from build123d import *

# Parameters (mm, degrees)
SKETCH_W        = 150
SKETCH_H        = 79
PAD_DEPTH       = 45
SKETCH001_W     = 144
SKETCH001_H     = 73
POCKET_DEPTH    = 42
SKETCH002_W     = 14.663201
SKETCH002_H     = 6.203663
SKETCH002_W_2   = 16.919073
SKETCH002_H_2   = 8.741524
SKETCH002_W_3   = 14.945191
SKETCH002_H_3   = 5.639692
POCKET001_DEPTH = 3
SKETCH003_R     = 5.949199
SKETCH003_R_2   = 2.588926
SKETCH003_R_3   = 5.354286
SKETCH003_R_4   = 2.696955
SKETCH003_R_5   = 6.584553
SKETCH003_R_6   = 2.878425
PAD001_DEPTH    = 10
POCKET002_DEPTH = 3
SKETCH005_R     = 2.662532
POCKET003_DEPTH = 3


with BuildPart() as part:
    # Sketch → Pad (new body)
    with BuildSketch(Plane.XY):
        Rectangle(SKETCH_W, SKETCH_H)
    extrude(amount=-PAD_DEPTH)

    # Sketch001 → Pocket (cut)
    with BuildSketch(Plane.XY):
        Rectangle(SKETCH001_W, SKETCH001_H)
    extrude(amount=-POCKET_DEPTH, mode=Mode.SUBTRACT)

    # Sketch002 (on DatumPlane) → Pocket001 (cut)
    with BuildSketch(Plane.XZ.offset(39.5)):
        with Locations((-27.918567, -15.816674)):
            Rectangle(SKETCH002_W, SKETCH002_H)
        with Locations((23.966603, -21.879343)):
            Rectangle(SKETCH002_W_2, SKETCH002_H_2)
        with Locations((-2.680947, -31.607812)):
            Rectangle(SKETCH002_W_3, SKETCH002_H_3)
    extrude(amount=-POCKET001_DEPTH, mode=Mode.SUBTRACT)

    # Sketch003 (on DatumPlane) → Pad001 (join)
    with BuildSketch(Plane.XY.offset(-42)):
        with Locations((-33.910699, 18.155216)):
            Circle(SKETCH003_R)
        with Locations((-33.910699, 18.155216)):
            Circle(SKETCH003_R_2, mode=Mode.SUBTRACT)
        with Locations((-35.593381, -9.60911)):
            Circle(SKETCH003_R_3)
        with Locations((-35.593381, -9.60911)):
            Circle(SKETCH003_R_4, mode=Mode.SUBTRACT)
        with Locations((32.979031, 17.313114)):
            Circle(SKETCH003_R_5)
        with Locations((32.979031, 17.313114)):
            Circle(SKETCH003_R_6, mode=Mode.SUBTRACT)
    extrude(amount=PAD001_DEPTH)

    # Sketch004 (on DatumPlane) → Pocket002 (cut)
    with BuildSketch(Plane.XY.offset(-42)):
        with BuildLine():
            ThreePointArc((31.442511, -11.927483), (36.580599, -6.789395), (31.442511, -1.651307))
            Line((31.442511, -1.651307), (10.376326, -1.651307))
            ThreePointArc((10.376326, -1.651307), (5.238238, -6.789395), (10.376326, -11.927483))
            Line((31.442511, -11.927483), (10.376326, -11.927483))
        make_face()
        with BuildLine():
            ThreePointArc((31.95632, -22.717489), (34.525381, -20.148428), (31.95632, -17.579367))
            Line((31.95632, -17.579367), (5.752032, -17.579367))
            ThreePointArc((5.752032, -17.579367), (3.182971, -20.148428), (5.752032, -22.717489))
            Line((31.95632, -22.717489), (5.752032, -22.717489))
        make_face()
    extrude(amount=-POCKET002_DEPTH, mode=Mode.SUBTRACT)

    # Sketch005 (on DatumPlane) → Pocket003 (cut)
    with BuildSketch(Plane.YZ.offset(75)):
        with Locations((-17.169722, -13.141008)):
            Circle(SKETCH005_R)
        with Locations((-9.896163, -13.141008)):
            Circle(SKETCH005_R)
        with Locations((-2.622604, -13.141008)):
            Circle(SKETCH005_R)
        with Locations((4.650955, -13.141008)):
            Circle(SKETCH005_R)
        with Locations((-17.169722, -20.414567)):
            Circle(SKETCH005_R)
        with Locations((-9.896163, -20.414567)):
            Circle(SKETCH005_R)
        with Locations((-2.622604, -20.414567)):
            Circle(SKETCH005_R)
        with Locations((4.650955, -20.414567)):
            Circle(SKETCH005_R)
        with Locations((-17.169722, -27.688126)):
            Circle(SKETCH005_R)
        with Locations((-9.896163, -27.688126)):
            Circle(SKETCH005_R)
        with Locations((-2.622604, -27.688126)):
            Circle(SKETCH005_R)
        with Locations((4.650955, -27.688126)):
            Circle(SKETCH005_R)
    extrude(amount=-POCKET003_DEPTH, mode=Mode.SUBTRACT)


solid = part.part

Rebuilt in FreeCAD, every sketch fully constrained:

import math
import FreeCAD as App
import Part
import Sketcher


def add_polygon(sketch, points):
    """Adds a closed chain of lines whose ends are joined by coincident constraints."""
    first, n = sketch.GeometryCount, len(points)
    for a, b in zip(points, points[1:] + points[:1]):
        sketch.addGeometry(Part.LineSegment(App.Vector(*a, 0), App.Vector(*b, 0)), False)
    for i in range(n):
        sketch.addConstraint(Sketcher.Constraint("Coincident", first + i, 2, first + (i + 1) % n, 1))

doc = App.newDocument("Part")
body = doc.addObject("PartDesign::Body", "Body")

sketch1 = body.newObject("Sketcher::SketchObject", "Sketch")
sketch1.AttachmentSupport = (doc.getObject("XY_Plane"), [""])
sketch1.MapMode = "FlatFace"
add_polygon(sketch1, [(-75, 40), (-75, -40), (75, -40), (75, 40)])
sketch1.addConstraint([
    Sketcher.Constraint("Vertical", 0),
    Sketcher.Constraint("Horizontal", 1),
    Sketcher.Constraint("Vertical", 2),
    Sketcher.Constraint("Horizontal", 3),
    Sketcher.Constraint("Symmetric", 0, 2, 2, 2, -1, 1),
    Sketcher.Constraint("DistanceX", 1, 1, 1, 2, 150.0),
    Sketcher.Constraint("DistanceY", 0, 2, 0, 1, 79.0),
])
pad1 = body.newObject("PartDesign::Pad", "Pad")
pad1.Profile = sketch1
pad1.Length = 45
pad1.Reversed = True

sketch2 = body.newObject("Sketcher::SketchObject", "Sketch001")
sketch2.AttachmentSupport = (doc.getObject("XY_Plane"), [""])
sketch2.MapMode = "FlatFace"
add_polygon(sketch2, [(-72, 36), (-72, -36), (72, -36), (72, 36)])
sketch2.addConstraint([
    Sketcher.Constraint("Vertical", 0),
    Sketcher.Constraint("Horizontal", 1),
    Sketcher.Constraint("Vertical", 2),
    Sketcher.Constraint("Horizontal", 3),
    Sketcher.Constraint("Symmetric", 0, 2, 2, 2, -1, 1),
    Sketcher.Constraint("DistanceX", 1, 1, 1, 2, 144.0),
    Sketcher.Constraint("DistanceY", 0, 2, 0, 1, 73.0),
])
pocket1 = body.newObject("PartDesign::Pocket", "Pocket")
pocket1.Profile = sketch2
pocket1.Length = 42

sketch3 = body.newObject("Sketcher::SketchObject", "Sketch002")
sketch3.AttachmentSupport = (doc.getObject("XZ_Plane"), [""])
sketch3.MapMode = "FlatFace"
sketch3.AttachmentOffset = App.Placement(App.Vector(0, 0, 39.5), App.Rotation())
add_polygon(sketch3, [(-35, -13), (-35, -19), (-21, -19), (-21, -13)])
add_polygon(sketch3, [(16, -18), (16, -26), (32, -26), (32, -18)])
add_polygon(sketch3, [(-10, -29), (-10, -34), (5, -34), (5, -29)])
sketch3.addConstraint([
    Sketcher.Constraint("Vertical", 0),
    Sketcher.Constraint("Horizontal", 1),
    Sketcher.Constraint("Vertical", 2),
    Sketcher.Constraint("Horizontal", 3),
    Sketcher.Constraint("Vertical", 4),
    Sketcher.Constraint("Horizontal", 5),
    Sketcher.Constraint("Vertical", 6),
    Sketcher.Constraint("Horizontal", 7),
    Sketcher.Constraint("Vertical", 8),
    Sketcher.Constraint("Horizontal", 9),
    Sketcher.Constraint("Vertical", 10),
    Sketcher.Constraint("Horizontal", 11),
    Sketcher.Constraint("DistanceX", 1, 1, 1, 2, 14.663201),
    Sketcher.Constraint("DistanceX", 9, 1, 9, 2, 14.945191),
    Sketcher.Constraint("DistanceY", 4, 2, 1, 2, 7.3316),
    Sketcher.Constraint("DistanceX", 5, 1, 5, 2, 16.919073),
    Sketcher.Constraint("DistanceY", 0, 2, 0, 1, 6.203663),
    Sketcher.Constraint("DistanceY", 4, 2, 4, 1, 8.741524),
    Sketcher.Constraint("DistanceY", 8, 2, 8, 1, 5.639692),
    Sketcher.Constraint("DistanceX", -1, 1, 5, 2, 32.426139),
    Sketcher.Constraint("DistanceY", 6, 2, -1, 1, 17.508581),
    Sketcher.Constraint("DistanceX", -1, 1, 9, 2, 4.791648),
    Sketcher.Constraint("DistanceY", 10, 2, 4, 2, 2.537861),
    Sketcher.Constraint("DistanceX", 0, 2, -1, 1, 35.250168),
])
pocket2 = body.newObject("PartDesign::Pocket", "Pocket001")
pocket2.Profile = sketch3
pocket2.Length = 3

sketch4 = body.newObject("Sketcher::SketchObject", "Sketch003")
sketch4.AttachmentSupport = (doc.getObject("XY_Plane"), [""])
sketch4.MapMode = "FlatFace"
sketch4.AttachmentOffset = App.Placement(App.Vector(0, 0, -42), App.Rotation())
sketch4.addGeometry([
    Part.Circle(App.Vector(-33.9, 18.2, 0), App.Vector(0, 0, 1), 5.9),
    Part.Circle(App.Vector(-33.9, 18.2, 0), App.Vector(0, 0, 1), 2.6),
    Part.Circle(App.Vector(-35.6, -9.6, 0), App.Vector(0, 0, 1), 5.4),
    Part.Circle(App.Vector(-35.6, -9.6, 0), App.Vector(0, 0, 1), 2.7),
    Part.Circle(App.Vector(33, 17.3, 0), App.Vector(0, 0, 1), 6.6),
    Part.Circle(App.Vector(33, 17.3, 0), App.Vector(0, 0, 1), 2.9),
], False)
sketch4.addConstraint([
    Sketcher.Constraint("Coincident", 1, 3, 0, 3),
    Sketcher.Constraint("Coincident", 3, 3, 2, 3),
    Sketcher.Constraint("Coincident", 5, 3, 4, 3),
    Sketcher.Constraint("Diameter", 1, 5.177852),
    Sketcher.Constraint("Diameter", 3, 5.39391),
    Sketcher.Constraint("Diameter", 5, 5.75685),
    Sketcher.Constraint("Diameter", 0, 11.898398),
    Sketcher.Constraint("Diameter", 2, 10.708572),
    Sketcher.Constraint("Diameter", 4, 13.169106),
    Sketcher.Constraint("DistanceX", 0, 3, -1, 1, 33.910699),
    Sketcher.Constraint("DistanceX", 2, 3, -1, 1, 35.593381),
    Sketcher.Constraint("DistanceY", 2, 3, -1, 1, 9.60911),
    Sketcher.Constraint("DistanceX", -1, 1, 4, 3, 32.979031),
    Sketcher.Constraint("DistanceY", -1, 1, 0, 3, 18.155216),
    Sketcher.Constraint("DistanceY", -1, 1, 4, 3, 17.313114),
])
pad2 = body.newObject("PartDesign::Pad", "Pad001")
pad2.Profile = sketch4
pad2.Length = 10

sketch5 = body.newObject("Sketcher::SketchObject", "Sketch004")
sketch5.AttachmentSupport = (doc.getObject("XY_Plane"), [""])
sketch5.MapMode = "FlatFace"
sketch5.AttachmentOffset = App.Placement(App.Vector(0, 0, -42), App.Rotation())
sketch5.addGeometry([
    Part.ArcOfCircle(Part.Circle(App.Vector(31.4, -6.8, 0), App.Vector(0, 0, 1), 5.1), math.radians(-90), math.radians(90)),
    Part.LineSegment(App.Vector(31.4, -1.7, 0), App.Vector(10.4, -1.7, 0)),
    Part.ArcOfCircle(Part.Circle(App.Vector(10.4, -6.8, 0), App.Vector(0, 0, 1), 5.1), math.radians(90), math.radians(270)),
    Part.LineSegment(App.Vector(10.4, -11.9, 0), App.Vector(31.4, -11.9, 0)),
    Part.ArcOfCircle(Part.Circle(App.Vector(32, -20.1, 0), App.Vector(0, 0, 1), 2.6), math.radians(-90), math.radians(90)),
    Part.LineSegment(App.Vector(32, -17.6, 0), App.Vector(5.8, -17.6, 0)),
    Part.ArcOfCircle(Part.Circle(App.Vector(5.8, -20.1, 0), App.Vector(0, 0, 1), 2.6), math.radians(90), math.radians(270)),
    Part.LineSegment(App.Vector(5.8, -22.7, 0), App.Vector(32, -22.7, 0)),
], False)
sketch5.addConstraint([
    Sketcher.Constraint("Tangent", 0, 2, 1, 1),
    Sketcher.Constraint("Tangent", 1, 2, 2, 1),
    Sketcher.Constraint("Tangent", 2, 2, 3, 1),
    Sketcher.Constraint("Tangent", 3, 2, 0, 1),
    Sketcher.Constraint("Tangent", 4, 2, 5, 1),
    Sketcher.Constraint("Tangent", 5, 2, 6, 1),
    Sketcher.Constraint("Tangent", 6, 2, 7, 1),
    Sketcher.Constraint("Tangent", 7, 2, 4, 1),
    Sketcher.Constraint("Horizontal", 1),
    Sketcher.Constraint("Horizontal", 3),
    Sketcher.Constraint("Horizontal", 5),
    Sketcher.Constraint("Horizontal", 7),
    Sketcher.Constraint("Radius", 4, 2.569061),
    Sketcher.Constraint("Radius", 0, 5.138088),
    Sketcher.Constraint("DistanceX", 5, 2, 5, 1, 26.204288),
    Sketcher.Constraint("DistanceX", 1, 2, 1, 1, 21.066185),
    Sketcher.Constraint("DistanceX", -1, 1, 0, 3, 31.442511),
    Sketcher.Constraint("DistanceX", -1, 1, 4, 3, 31.95632),
    Sketcher.Constraint("DistanceY", 6, 2, -1, 1, 22.717489),
    Sketcher.Constraint("DistanceY", 4, 3, 0, 2, 18.497121),
])
pocket3 = body.newObject("PartDesign::Pocket", "Pocket002")
pocket3.Profile = sketch5
pocket3.Length = 3

sketch6 = body.newObject("Sketcher::SketchObject", "Sketch005")
sketch6.AttachmentSupport = (doc.getObject("YZ_Plane"), [""])
sketch6.MapMode = "FlatFace"
sketch6.AttachmentOffset = App.Placement(App.Vector(0, 0, 75), App.Rotation())
sketch6.addGeometry([
    Part.Circle(App.Vector(-17.2, -13.1, 0), App.Vector(0, 0, 1), 2.7),
    Part.Circle(App.Vector(-9.9, -13.1, 0), App.Vector(0, 0, 1), 2.7),
    Part.Circle(App.Vector(-2.6, -13.1, 0), App.Vector(0, 0, 1), 2.7),
    Part.Circle(App.Vector(4.7, -13.1, 0), App.Vector(0, 0, 1), 2.7),
    Part.Circle(App.Vector(-17.2, -20.4, 0), App.Vector(0, 0, 1), 2.7),
    Part.Circle(App.Vector(-9.9, -20.4, 0), App.Vector(0, 0, 1), 2.7),
    Part.Circle(App.Vector(-2.6, -20.4, 0), App.Vector(0, 0, 1), 2.7),
    Part.Circle(App.Vector(4.7, -20.4, 0), App.Vector(0, 0, 1), 2.7),
    Part.Circle(App.Vector(-17.2, -27.7, 0), App.Vector(0, 0, 1), 2.7),
    Part.Circle(App.Vector(-9.9, -27.7, 0), App.Vector(0, 0, 1), 2.7),
    Part.Circle(App.Vector(-2.6, -27.7, 0), App.Vector(0, 0, 1), 2.7),
    Part.Circle(App.Vector(4.7, -27.7, 0), App.Vector(0, 0, 1), 2.7),
], False)
sketch6.addConstraint([
    Sketcher.Constraint("Equal", 0, 1),
    Sketcher.Constraint("Equal", 1, 2),
    Sketcher.Constraint("Equal", 2, 3),
    Sketcher.Constraint("Equal", 3, 4),
    Sketcher.Constraint("Equal", 4, 5),
    Sketcher.Constraint("Equal", 5, 6),
    Sketcher.Constraint("Equal", 6, 7),
    Sketcher.Constraint("Equal", 7, 8),
    Sketcher.Constraint("Equal", 8, 9),
    Sketcher.Constraint("Equal", 9, 10),
    Sketcher.Constraint("Equal", 10, 11),
    Sketcher.Constraint("Horizontal", 0, 3, 1, 3),
    Sketcher.Constraint("Horizontal", 1, 3, 2, 3),
    Sketcher.Constraint("Horizontal", 2, 3, 3, 3),
    Sketcher.Constraint("Horizontal", 4, 3, 5, 3),
    Sketcher.Constraint("Horizontal", 5, 3, 6, 3),
    Sketcher.Constraint("Horizontal", 6, 3, 7, 3),
    Sketcher.Constraint("Horizontal", 8, 3, 9, 3),
    Sketcher.Constraint("Horizontal", 9, 3, 10, 3),
    Sketcher.Constraint("Horizontal", 10, 3, 11, 3),
    Sketcher.Constraint("Vertical", 0, 3, 4, 3),
    Sketcher.Constraint("Vertical", 1, 3, 5, 3),
    Sketcher.Constraint("Vertical", 2, 3, 6, 3),
    Sketcher.Constraint("Vertical", 3, 3, 7, 3),
    Sketcher.Constraint("Vertical", 4, 3, 8, 3),
    Sketcher.Constraint("Vertical", 5, 3, 9, 3),
    Sketcher.Constraint("Vertical", 6, 3, 10, 3),
    Sketcher.Constraint("Vertical", 7, 3, 11, 3),
    Sketcher.Constraint("Diameter", 0, 5.325064),
    Sketcher.Constraint("DistanceX", 0, 3, -1, 1, 17.169722),
    Sketcher.Constraint("DistanceX", 0, 3, 1, 3, 7.273559),
    Sketcher.Constraint("DistanceX", 1, 3, 2, 3, 7.273559),
    Sketcher.Constraint("DistanceX", 2, 3, 3, 3, 7.273559),
    Sketcher.Constraint("DistanceY", 4, 3, 0, 3, 7.273559),
    Sketcher.Constraint("DistanceY", 8, 3, 4, 3, 7.273559),
    Sketcher.Constraint("DistanceY", 0, 3, -1, 1, 13.141008),
])
pocket4 = body.newObject("PartDesign::Pocket", "Pocket003")
pocket4.Profile = sketch6
pocket4.Length = 3

doc.recompute()
